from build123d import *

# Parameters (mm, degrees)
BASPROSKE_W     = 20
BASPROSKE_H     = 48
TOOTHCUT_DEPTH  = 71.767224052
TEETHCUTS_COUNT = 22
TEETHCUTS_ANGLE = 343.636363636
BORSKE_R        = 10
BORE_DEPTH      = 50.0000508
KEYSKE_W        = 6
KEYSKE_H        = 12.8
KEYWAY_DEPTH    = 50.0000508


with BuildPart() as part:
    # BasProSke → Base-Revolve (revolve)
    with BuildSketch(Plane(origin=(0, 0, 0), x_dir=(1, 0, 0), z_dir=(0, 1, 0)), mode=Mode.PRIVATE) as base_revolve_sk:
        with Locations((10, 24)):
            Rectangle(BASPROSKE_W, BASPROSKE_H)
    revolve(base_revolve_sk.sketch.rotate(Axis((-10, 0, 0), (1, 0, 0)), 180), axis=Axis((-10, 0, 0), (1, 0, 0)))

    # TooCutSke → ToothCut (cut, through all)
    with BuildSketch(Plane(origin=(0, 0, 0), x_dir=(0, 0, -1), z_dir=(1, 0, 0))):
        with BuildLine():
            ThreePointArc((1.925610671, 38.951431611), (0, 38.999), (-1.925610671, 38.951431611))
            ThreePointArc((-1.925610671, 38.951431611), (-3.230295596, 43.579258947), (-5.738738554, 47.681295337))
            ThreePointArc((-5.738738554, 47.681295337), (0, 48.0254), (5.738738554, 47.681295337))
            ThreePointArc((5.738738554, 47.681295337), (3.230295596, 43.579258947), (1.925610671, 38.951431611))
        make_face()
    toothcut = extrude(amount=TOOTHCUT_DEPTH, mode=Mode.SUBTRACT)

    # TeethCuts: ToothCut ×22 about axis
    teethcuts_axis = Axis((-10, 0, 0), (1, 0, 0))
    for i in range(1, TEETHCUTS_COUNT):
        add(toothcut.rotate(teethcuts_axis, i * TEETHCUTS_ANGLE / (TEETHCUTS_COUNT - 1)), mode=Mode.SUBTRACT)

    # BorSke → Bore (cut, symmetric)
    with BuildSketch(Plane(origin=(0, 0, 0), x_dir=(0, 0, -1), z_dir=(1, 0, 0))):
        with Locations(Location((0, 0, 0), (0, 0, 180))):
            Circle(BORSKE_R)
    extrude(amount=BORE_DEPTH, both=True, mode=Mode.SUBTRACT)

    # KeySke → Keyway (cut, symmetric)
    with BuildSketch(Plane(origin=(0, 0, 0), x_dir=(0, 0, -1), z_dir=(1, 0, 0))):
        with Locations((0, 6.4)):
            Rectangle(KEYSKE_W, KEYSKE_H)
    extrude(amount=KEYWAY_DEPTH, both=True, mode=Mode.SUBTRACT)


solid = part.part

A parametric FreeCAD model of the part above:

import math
import FreeCAD as App
import Part
import Sketcher
from FreeCAD import Vector


def add_polygon(sketch, points):
    """Adds a closed chain of lines whose ends are joined by coincident constraints."""
    first, n = sketch.GeometryCount, len(points)
    for a, b in zip(points, points[1:] + points[:1]):
        sketch.addGeometry(Part.LineSegment(App.Vector(*a, 0), App.Vector(*b, 0)), False)
    for i in range(n):
        sketch.addConstraint(Sketcher.Constraint("Coincident", first + i, 2, first + (i + 1) % n, 1))

doc = App.newDocument("Part")
params = doc.addObject("Spreadsheet::Sheet", "Params")
for row, (alias, value) in enumerate([
    ("sketch1_width", "20 mm"),
    ("sketch1_height", "48 mm"),
    ("revolution_angle", "360 deg"),
    ("sketch2_radius", "17.6 mm"),
    ("sketch3_diameter", "20 mm"),
    ("pocket2_length", "100.000102 mm"),
    ("sketch4_height", "6 mm"),
    ("sketch4_width", "12.8 mm"),
    ("pocket3_length", "100.000102 mm"),
], start=1):
    params.set(f"A{row}", alias)
    params.set(f"B{row}", "=" + value)
    params.setAlias(f"B{row}", alias)

body = doc.addObject("PartDesign::Body", "Body")

# Sketch on XZ plane
sketch1 = body.newObject("Sketcher::SketchObject", "Sketch")
sketch1.AttachmentSupport = (doc.getObject("XZ_Plane"), [""])
sketch1.MapMode = "FlatFace"
add_polygon(sketch1, [(0, -48), (0, 0), (20, 0), (20, -48)])  # lines 0-3
sketch1.addConstraint([
    Sketcher.Constraint("Vertical", 0),
    Sketcher.Constraint("Horizontal", 1),
    Sketcher.Constraint("Vertical", 2),
    Sketcher.Constraint("Horizontal", 3),
    Sketcher.Constraint("Coincident", 0, 2, -1, 1),
    Sketcher.Constraint("DistanceX", 1, 1, 1, 2, 20.0),
    Sketcher.Constraint("DistanceY", 0, 1, 0, 2, 48.0),
])
sketch1.setExpression("Constraints[9]", "Params.sketch1_width")
sketch1.setExpression("Constraints[10]", "Params.sketch1_height")
revolution = body.newObject("PartDesign::Revolution", "Revolution")
revolution.Profile = sketch1
revolution.ReferenceAxis = (sketch1, ["H_Axis"])
revolution.setExpression("Angle", "Params.revolution_angle")

# Sketch on YZ plane
sketch2 = body.newObject("Sketcher::SketchObject", "Sketch001")
sketch2.AttachmentSupport = (doc.getObject("YZ_Plane"), [""])
sketch2.MapMode = "FlatFace"
sketch2.addGeometry([
    Part.ArcOfCircle(Part.Circle(Vector(0, 0, 0), Vector(0, 0, 1), 39), math.radians(-2.83), math.radians(2.83)),
    Part.ArcOfCircle(Part.Circle(Vector(36.5, -19.4, 0), Vector(0, 0, 1), 17.6), math.radians(51), math.radians(82)),
    Part.ArcOfCircle(Part.Circle(Vector(0, 0, 0), Vector(0, 0, 1), 48), math.radians(-6.86), math.radians(6.86)),
    Part.ArcOfCircle(Part.Circle(Vector(36.5, 19.4, 0), Vector(0, 0, 1), 17.6), math.radians(-82), math.radians(-51)),
], False)
sketch2.addConstraint([
    Sketcher.Constraint("Coincident", 0, 1, 1, 2),
    Sketcher.Constraint("Coincident", 1, 1, 2, 1),
    Sketcher.Constraint("Coincident", 2, 2, 3, 2),
    Sketcher.Constraint("Coincident", 3, 1, 0, 2),
    Sketcher.Constraint("Coincident", 0, 3, -1, 1),
    Sketcher.Constraint("Coincident", 2, 3, -1, 1),
    Sketcher.Constraint("Equal", 1, 3),
    Sketcher.Constraint("Symmetric", 1, 3, 3, 3, -1),
    Sketcher.Constraint("Radius", 1, 17.6),
    Sketcher.Constraint("Radius", 0, 38.999),
    Sketcher.Constraint("Radius", 2, 48.0254),
    Sketcher.Constraint("DistanceY", 1, 1, 3, 3, 25.097598),
    Sketcher.Constraint("DistanceY", 1, 3, -1, 1, 19.35886),
])
sketch2.setExpression("Constraints[8]", "Params.sketch2_radius")
pocket1 = body.newObject("PartDesign::Pocket", "Pocket")
pocket1.Profile = sketch2
pocket1.Type = "ThroughAll"
pocket1.Reversed = True
doc.recompute()

polarpattern = body.newObject("PartDesign::PolarPattern", "PolarPattern")
polarpattern.Originals = [pocket1]
polarpattern.Axis = (doc.getObject("X_Axis"), [""])
polarpattern.Angle = 360
polarpattern.Occurrences = 22
body.Tip = polarpattern

# Sketch on YZ plane
sketch3 = body.newObject("Sketcher::SketchObject", "Sketch002")
sketch3.AttachmentSupport = (doc.getObject("YZ_Plane"), [""])
sketch3.MapMode = "FlatFace"
sketch3.addGeometry(Part.Circle(Vector(0, 0, 0), Vector(0, 0, 1), 10), False)
sketch3.addConstraint([
    Sketcher.Constraint("Coincident", 0, 3, -1, 1),
    Sketcher.Constraint("Diameter", 0, 20.0),
])
sketch3.setExpression("Constraints[1]", "Params.sketch3_diameter")
pocket2 = body.newObject("PartDesign::Pocket", "Pocket001")
pocket2.Profile = sketch3
pocket2.setExpression("Length", "Params.pocket2_length")
pocket2.Midplane = True

# Sketch on YZ plane
sketch4 = body.newObject("Sketcher::SketchObject", "Sketch003")
sketch4.AttachmentSupport = (doc.getObject("YZ_Plane"), [""])
sketch4.MapMode = "FlatFace"
add_polygon(sketch4, [(13, 3), (0, 3), (0, -3), (13, -3)])  # lines 0-3
sketch4.addConstraint([
    Sketcher.Constraint("Horizontal", 0),
    Sketcher.Constraint("Vertical", 1),
    Sketcher.Constraint("Horizontal", 2),
    Sketcher.Constraint("Vertical", 3),
    Sketcher.Constraint("Symmetric", 0, 2, 1, 2, -1, 1),
    Sketcher.Constraint("DistanceY", 1, 2, 1, 1, 6.0),
    Sketcher.Constraint("DistanceX", 0, 2, 0, 1, 12.8),
])
sketch4.setExpression("Constraints[9]", "Params.sketch4_height")
sketch4.setExpression("Constraints[10]", "Params.sketch4_width")
pocket3 = body.newObject("PartDesign::Pocket", "Pocket002")
pocket3.Profile = sketch4
pocket3.setExpression("Length", "Params.pocket3_length")
pocket3.Midplane = True

doc.recompute()
